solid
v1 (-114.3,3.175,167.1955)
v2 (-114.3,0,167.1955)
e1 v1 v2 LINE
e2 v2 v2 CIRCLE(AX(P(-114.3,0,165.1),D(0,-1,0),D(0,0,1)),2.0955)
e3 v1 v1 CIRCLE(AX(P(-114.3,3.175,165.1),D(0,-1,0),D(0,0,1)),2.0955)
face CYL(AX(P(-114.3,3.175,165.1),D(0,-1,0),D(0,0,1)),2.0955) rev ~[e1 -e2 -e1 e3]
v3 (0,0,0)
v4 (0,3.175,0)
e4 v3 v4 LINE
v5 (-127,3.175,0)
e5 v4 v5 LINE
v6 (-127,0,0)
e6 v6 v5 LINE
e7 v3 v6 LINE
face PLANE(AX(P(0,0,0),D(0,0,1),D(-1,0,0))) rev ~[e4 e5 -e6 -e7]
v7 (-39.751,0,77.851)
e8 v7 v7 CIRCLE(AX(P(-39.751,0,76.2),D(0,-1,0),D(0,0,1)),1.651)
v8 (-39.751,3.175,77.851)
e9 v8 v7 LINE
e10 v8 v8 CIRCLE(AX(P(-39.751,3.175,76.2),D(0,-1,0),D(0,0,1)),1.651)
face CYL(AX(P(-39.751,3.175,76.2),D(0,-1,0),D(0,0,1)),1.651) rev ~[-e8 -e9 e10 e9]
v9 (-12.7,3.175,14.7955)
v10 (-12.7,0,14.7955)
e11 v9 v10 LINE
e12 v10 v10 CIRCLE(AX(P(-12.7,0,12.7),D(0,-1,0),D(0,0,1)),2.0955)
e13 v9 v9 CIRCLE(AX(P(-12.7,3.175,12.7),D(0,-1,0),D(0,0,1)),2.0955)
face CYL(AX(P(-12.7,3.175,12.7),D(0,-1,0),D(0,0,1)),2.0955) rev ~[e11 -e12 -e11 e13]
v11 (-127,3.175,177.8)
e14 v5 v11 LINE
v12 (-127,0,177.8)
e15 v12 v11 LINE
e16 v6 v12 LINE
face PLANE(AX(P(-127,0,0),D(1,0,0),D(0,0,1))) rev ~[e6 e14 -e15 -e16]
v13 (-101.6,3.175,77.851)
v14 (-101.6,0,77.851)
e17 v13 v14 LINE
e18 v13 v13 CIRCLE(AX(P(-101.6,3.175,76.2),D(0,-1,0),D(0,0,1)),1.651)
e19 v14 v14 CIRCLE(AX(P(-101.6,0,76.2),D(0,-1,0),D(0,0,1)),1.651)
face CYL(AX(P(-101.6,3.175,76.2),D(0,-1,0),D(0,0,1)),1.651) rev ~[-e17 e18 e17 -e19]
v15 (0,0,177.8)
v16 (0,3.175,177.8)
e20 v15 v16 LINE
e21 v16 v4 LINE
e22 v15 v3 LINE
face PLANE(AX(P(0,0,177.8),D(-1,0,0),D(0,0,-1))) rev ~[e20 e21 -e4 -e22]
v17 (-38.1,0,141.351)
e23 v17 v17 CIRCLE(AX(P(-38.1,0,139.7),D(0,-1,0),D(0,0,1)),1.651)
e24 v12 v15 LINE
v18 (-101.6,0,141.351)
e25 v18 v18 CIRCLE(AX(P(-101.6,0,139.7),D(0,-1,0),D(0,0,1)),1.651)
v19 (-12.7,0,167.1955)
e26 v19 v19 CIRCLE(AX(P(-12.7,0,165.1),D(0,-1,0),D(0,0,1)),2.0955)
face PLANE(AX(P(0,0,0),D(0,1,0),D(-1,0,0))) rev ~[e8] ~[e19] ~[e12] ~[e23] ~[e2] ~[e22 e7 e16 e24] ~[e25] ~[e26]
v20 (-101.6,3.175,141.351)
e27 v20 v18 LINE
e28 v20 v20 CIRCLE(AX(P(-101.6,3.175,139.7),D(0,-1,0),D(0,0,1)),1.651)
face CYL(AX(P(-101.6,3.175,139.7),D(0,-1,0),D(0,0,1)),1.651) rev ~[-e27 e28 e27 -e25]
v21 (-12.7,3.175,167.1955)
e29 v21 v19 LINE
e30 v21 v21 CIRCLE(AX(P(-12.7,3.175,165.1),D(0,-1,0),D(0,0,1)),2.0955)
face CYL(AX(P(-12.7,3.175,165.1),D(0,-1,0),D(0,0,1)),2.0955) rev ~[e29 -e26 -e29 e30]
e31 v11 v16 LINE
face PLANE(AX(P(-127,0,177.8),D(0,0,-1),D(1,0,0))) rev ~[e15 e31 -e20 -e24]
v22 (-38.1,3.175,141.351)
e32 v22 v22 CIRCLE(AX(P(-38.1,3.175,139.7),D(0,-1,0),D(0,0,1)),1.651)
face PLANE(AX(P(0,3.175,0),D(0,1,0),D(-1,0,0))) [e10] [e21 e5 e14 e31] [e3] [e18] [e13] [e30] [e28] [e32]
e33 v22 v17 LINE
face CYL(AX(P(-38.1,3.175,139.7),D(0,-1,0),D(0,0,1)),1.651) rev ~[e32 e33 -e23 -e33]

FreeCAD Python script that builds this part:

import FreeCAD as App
import Part
import Sketcher

V = App.Vector
Q = App.Units.Quantity


def add_polygon(sketch, points):
    """Adds a closed chain of lines whose ends are joined by coincident constraints."""
    first, n = sketch.GeometryCount, len(points)
    for a, b in zip(points, points[1:] + points[:1]):
        sketch.addGeometry(Part.LineSegment(App.Vector(*a, 0), App.Vector(*b, 0)), False)
    for i in range(n):
        sketch.addConstraint(Sketcher.Constraint("Coincident", first + i, 2, first + (i + 1) % n, 1))

doc = App.newDocument("Part")
body = doc.addObject("PartDesign::Body", "Body")

sketch1 = body.newObject("Sketcher::SketchObject", "Sketch")
sketch1.AttachmentSupport = (doc.getObject("XZ_Plane"), [""])
sketch1.MapMode = "FlatFace"
add_polygon(sketch1, [(0, 177.8), (0, 0), (-127, 0), (-127, 177.8)])
sketch1.addConstraint([
    Sketcher.Constraint("Vertical", 0),
    Sketcher.Constraint("Horizontal", 1),
    Sketcher.Constraint("Vertical", 2),
    Sketcher.Constraint("Horizontal", 3),
    Sketcher.Constraint("Coincident", 0, 2, -1, 1),
    Sketcher.Constraint("DistanceX", 1, 2, 1, 1, Q("5 in")),
    Sketcher.Constraint("DistanceY", 0, 2, 0, 1, Q("7 in")),
])
pad1 = body.newObject("PartDesign::Pad", "Pad")
pad1.Profile = sketch1
pad1.Length = Q("0.125 in")
pad1.Reversed = True

sketch2 = body.newObject("Sketcher::SketchObject", "Sketch001")
sketch2.AttachmentSupport = (doc.getObject("XZ_Plane"), [""])
sketch2.MapMode = "FlatFace"
sketch2.AttachmentOffset = App.Placement(V(0, 0, -0.125 * 25.4), App.Rotation())
sketch2.addGeometry([
    Part.Circle(V(-114.3, 165.1, 0), V(0, 0, 1), 2.0955),
    Part.Circle(V(-12.7, 165.1, 0), V(0, 0, 1), 2.0955),
    Part.Circle(V(-12.7, 12.7, 0), V(0, 0, 1), 2.0955),
], False)
sketch2.addConstraint([
    Sketcher.Constraint("Equal", 0, 1),
    Sketcher.Constraint("Equal", 1, 2),
    Sketcher.Constraint("Horizontal", 0, 3, 1, 3),
    Sketcher.Constraint("Vertical", 1, 3, 2, 3),
    Sketcher.Constraint("Diameter", 0, Q("0.165 in")),
    Sketcher.Constraint("DistanceX", 0, 3, 1, 3, Q("4 in")),
    Sketcher.Constraint("DistanceY", 2, 3, 1, 3, Q("6 in")),
    Sketcher.Constraint("DistanceX", 0, 3, -1, 1, Q("4.5 in")),
    Sketcher.Constraint("DistanceY", -1, 1, 0, 3, Q("6.5 in")),
])
doc.recompute()
hole = body.newObject("PartDesign::Hole", "Hole")
hole.Profile = sketch2
hole.ThreadType = "None"
hole.Diameter = Q("0.165 in")
hole.DepthType = "ThroughAll"
hole.Reversed = True

sketch3 = body.newObject("Sketcher::SketchObject", "Sketch002")
sketch3.AttachmentSupport = (doc.getObject("XZ_Plane"), [""])
sketch3.MapMode = "FlatFace"
sketch3.AttachmentOffset = App.Placement(V(0, 0, -0.125 * 25.4), App.Rotation())
sketch3.addGeometry([
    Part.Circle(V(-38.1, 139.7, 0), V(0, 0, 1), 1.651),
    Part.Circle(V(-39.751, 76.2, 0), V(0, 0, 1), 1.651),
    Part.Circle(V(-101.6, 76.2, 0), V(0, 0, 1), 1.651),
    Part.Circle(V(-101.6, 139.7, 0), V(0, 0, 1), 1.651),
], False)
sketch3.addConstraint([
    Sketcher.Constraint("Equal", 0, 1),
    Sketcher.Constraint("Equal", 1, 2),
    Sketcher.Constraint("Equal", 2, 3),
    Sketcher.Constraint("Horizontal", 1, 3, 2, 3),
    Sketcher.Constraint("Horizontal", 0, 3, 3, 3),
    Sketcher.Constraint("Vertical", 2, 3, 3, 3),
    Sketcher.Constraint("Diameter", 0, Q("0.13 in")),
    Sketcher.Constraint("DistanceY", -1, 1, 1, 3, Q("3 in")),
    Sketcher.Constraint("DistanceX", 2, 3, -1, 1, Q("4 in")),
    Sketcher.Constraint("DistanceX", 0, 3, -1, 1, Q("1.5 in")),
    Sketcher.Constraint("DistanceY", -1, 1, 0, 3, Q("5.5 in")),
    Sketcher.Constraint("DistanceX", 1, 3, -1, 1, Q("1.565 in")),
])
doc.recompute()
hole2 = body.newObject("PartDesign::Hole", "Hole001")
hole2.Profile = sketch3
hole2.ThreadType = "None"
hole2.Diameter = Q("0.13 in")
hole2.DepthType = "ThroughAll"
hole2.Reversed = True

doc.recompute()
